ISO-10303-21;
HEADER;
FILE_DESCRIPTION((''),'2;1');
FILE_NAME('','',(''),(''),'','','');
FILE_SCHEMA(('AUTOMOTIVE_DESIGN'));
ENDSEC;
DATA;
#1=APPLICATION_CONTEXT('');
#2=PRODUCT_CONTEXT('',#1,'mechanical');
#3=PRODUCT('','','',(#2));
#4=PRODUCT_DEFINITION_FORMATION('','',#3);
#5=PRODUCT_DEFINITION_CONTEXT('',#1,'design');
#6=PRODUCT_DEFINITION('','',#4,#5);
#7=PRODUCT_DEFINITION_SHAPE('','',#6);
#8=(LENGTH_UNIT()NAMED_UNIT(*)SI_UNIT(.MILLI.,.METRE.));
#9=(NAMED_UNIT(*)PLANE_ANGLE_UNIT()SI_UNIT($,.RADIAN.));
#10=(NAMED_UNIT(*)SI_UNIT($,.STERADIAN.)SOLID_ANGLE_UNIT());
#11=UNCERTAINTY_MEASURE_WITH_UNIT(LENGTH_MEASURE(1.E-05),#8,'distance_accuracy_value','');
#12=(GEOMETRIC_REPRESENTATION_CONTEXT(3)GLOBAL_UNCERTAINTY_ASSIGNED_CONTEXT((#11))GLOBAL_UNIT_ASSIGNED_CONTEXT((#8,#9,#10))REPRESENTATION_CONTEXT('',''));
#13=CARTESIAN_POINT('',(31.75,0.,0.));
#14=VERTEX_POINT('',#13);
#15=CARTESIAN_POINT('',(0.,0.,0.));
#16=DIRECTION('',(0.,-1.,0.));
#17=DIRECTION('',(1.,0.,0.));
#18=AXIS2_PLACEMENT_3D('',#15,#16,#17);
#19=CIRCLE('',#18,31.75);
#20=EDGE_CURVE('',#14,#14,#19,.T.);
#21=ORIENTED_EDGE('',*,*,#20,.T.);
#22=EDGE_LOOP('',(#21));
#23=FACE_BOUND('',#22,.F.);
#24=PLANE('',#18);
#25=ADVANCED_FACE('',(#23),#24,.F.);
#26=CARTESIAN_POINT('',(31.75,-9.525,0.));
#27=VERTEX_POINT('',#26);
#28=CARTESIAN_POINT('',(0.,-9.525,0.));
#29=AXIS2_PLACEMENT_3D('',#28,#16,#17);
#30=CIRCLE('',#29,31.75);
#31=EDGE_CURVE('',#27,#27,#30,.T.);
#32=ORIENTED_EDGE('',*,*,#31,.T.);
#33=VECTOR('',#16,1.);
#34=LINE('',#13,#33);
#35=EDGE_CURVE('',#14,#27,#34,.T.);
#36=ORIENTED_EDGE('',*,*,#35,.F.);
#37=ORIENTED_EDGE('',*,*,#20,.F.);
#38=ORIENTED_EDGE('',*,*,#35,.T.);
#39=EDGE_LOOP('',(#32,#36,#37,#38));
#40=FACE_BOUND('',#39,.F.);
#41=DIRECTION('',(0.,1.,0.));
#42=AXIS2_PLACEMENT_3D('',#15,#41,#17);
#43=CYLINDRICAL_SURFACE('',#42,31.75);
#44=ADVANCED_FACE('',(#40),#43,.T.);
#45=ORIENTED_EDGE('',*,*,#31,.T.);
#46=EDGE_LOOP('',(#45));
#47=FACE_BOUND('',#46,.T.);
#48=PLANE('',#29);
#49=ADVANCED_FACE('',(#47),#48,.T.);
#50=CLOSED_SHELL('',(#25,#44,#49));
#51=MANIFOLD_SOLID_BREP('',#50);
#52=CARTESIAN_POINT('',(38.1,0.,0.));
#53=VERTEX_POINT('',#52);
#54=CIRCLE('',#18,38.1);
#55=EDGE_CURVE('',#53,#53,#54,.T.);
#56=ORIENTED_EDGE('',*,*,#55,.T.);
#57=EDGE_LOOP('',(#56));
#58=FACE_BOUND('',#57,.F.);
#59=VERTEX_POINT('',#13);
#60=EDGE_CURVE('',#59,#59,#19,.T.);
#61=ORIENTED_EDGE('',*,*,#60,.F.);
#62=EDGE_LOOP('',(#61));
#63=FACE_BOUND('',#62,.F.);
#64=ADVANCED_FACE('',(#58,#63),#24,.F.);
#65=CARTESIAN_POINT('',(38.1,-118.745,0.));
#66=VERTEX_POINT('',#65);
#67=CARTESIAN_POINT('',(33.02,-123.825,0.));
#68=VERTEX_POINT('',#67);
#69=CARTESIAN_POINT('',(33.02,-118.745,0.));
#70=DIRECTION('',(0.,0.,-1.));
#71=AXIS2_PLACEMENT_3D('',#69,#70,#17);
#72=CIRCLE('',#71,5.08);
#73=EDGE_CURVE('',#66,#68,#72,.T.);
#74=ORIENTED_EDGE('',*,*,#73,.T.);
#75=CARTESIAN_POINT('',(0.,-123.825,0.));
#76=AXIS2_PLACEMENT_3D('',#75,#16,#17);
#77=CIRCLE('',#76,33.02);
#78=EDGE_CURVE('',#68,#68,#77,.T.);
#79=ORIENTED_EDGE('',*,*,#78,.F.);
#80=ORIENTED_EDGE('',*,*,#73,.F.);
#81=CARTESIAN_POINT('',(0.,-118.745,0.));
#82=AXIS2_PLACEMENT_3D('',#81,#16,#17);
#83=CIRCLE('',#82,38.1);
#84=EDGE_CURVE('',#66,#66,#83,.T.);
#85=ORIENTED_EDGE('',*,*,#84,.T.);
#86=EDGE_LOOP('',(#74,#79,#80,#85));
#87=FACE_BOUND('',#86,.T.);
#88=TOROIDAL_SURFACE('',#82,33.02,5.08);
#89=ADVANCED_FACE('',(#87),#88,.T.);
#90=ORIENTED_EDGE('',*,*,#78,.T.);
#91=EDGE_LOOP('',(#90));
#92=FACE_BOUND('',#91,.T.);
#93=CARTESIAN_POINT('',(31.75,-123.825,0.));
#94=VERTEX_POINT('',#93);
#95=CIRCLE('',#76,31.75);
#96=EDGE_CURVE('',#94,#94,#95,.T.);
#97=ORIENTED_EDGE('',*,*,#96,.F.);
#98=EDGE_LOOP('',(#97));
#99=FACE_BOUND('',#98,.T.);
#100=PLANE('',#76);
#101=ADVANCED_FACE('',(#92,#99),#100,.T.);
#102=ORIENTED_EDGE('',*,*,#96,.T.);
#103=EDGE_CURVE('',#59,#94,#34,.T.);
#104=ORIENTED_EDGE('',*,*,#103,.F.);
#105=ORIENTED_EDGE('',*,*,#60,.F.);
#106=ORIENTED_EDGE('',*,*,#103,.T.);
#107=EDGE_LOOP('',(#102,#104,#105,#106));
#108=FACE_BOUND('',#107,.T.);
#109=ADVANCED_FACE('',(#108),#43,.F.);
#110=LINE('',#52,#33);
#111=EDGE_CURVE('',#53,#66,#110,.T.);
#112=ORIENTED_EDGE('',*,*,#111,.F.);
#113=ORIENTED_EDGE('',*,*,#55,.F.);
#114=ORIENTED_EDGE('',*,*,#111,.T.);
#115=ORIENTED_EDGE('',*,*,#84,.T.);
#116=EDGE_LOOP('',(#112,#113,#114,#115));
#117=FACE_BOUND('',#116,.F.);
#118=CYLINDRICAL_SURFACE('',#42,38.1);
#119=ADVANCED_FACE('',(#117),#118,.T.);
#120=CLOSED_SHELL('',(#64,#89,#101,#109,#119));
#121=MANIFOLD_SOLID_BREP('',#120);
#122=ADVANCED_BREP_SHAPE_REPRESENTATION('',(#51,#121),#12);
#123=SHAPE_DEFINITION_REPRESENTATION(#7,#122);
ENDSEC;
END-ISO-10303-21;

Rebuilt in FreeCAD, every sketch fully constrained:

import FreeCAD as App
import Part
import Sketcher
from FreeCAD import Vector
Q = App.Units.Quantity


def edges_at(feature, points):
    """Names of the edges that pass closest to the given points."""
    edges = feature.Shape.Edges
    near = lambda p: min(range(len(edges)), key=lambda i: edges[i].distToShape(Part.Vertex(*p))[0])
    return sorted({f"Edge{near(p) + 1}" for p in points})

doc = App.newDocument("Part")
body = doc.addObject("PartDesign::Body", "Body")

# Sketch on XZ plane
sketch1 = body.newObject("Sketcher::SketchObject", "Sketch")
sketch1.AttachmentSupport = (doc.getObject("XZ_Plane"), [""])
sketch1.MapMode = "FlatFace"
sketch1.addGeometry(Part.Circle(Vector(0, 0, 0), Vector(0, 0, 1), 38), False)
sketch1.addGeometry(Part.Circle(Vector(0, 0, 0), Vector(0, 0, 1), 32), False)
sketch1.addConstraint(Sketcher.Constraint("Coincident", 0, 3, -1, 1))
sketch1.addConstraint(Sketcher.Constraint("Coincident", 1, 3, -1, 1))
sketch1.addConstraint(Sketcher.Constraint("Diameter", 0, Q("3 in")))
sketch1.addConstraint(Sketcher.Constraint("Diameter", 1, Q("2.5 in")))
pad1 = body.newObject("PartDesign::Pad", "Pad")
pad1.Profile = sketch1
pad1.Length = Q("4.875 in")
doc.recompute()

fillet = body.newObject("PartDesign::Fillet", "Fillet")
fillet.Base = (pad1, edges_at(pad1, [(-38.1, -123.825, 0)]))
fillet.Radius = Q("0.2 in")
body2 = doc.addObject("PartDesign::Body", "Body001")

# Sketch on XZ plane
sketch2 = body2.newObject("Sketcher::SketchObject", "Sketch001")
sketch2.AttachmentSupport = (doc.getObject("XZ_Plane001"), [""])
sketch2.MapMode = "FlatFace"
sketch2.addGeometry(Part.Circle(Vector(0, 0, 0), Vector(0, 0, 1), 32), False)
sketch2.addConstraint(Sketcher.Constraint("Coincident", 0, 3, -1, 1))
sketch2.addConstraint(Sketcher.Constraint("Diameter", 0, Q("2.5 in")))
pad2 = body2.newObject("PartDesign::Pad", "Pad001")
pad2.Profile = sketch2
pad2.Length = Q("0.375 in")

doc.recompute()
